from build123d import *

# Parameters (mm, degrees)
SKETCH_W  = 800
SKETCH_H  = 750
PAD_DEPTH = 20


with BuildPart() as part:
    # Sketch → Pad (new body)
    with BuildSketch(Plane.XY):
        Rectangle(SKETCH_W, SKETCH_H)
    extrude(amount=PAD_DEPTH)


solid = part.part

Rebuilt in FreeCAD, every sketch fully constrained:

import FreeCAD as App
import Part
import Sketcher

V = App.Vector
Q = App.Units.Quantity

doc = App.newDocument("Part")
body = doc.addObject("PartDesign::Body", "Body")

sketch1 = doc.addObject("Sketcher::SketchObject", "Sketch")
body.addObject(sketch1)
sketch1.AttachmentSupport = (doc.XY_Plane, [""])
sketch1.MapMode = "FlatFace"
sketch1.addGeometry([
    Part.LineSegment(V(-400, 375, 0), V(-400, -375, 0)),
    Part.LineSegment(V(-400, -375, 0), V(400, -375, 0)),
    Part.LineSegment(V(400, -375, 0), V(400, 375, 0)),
    Part.LineSegment(V(400, 375, 0), V(-400, 375, 0)),
], False)
sketch1.addConstraint([
    Sketcher.Constraint("Coincident", 0, 2, 1, 1),
    Sketcher.Constraint("Coincident", 1, 2, 2, 1),
    Sketcher.Constraint("Coincident", 2, 2, 3, 1),
    Sketcher.Constraint("Coincident", 3, 2, 0, 1),
    Sketcher.Constraint("Vertical", 0),
    Sketcher.Constraint("Horizontal", 1),
    Sketcher.Constraint("Vertical", 2),
    Sketcher.Constraint("Horizontal", 3),
    Sketcher.Constraint("Symmetric", 0, 2, 2, 2, -1, 1),
    Sketcher.Constraint("DistanceX", 1, 1, 1, 2, Q("800 mm")),
    Sketcher.Constraint("DistanceY", 0, 2, 0, 1, Q("750 mm")),
])
pad1 = doc.addObject("PartDesign::Pad", "Pad")
body.addObject(pad1)
pad1.Profile = sketch1
pad1.Length = 20

doc.recompute()
